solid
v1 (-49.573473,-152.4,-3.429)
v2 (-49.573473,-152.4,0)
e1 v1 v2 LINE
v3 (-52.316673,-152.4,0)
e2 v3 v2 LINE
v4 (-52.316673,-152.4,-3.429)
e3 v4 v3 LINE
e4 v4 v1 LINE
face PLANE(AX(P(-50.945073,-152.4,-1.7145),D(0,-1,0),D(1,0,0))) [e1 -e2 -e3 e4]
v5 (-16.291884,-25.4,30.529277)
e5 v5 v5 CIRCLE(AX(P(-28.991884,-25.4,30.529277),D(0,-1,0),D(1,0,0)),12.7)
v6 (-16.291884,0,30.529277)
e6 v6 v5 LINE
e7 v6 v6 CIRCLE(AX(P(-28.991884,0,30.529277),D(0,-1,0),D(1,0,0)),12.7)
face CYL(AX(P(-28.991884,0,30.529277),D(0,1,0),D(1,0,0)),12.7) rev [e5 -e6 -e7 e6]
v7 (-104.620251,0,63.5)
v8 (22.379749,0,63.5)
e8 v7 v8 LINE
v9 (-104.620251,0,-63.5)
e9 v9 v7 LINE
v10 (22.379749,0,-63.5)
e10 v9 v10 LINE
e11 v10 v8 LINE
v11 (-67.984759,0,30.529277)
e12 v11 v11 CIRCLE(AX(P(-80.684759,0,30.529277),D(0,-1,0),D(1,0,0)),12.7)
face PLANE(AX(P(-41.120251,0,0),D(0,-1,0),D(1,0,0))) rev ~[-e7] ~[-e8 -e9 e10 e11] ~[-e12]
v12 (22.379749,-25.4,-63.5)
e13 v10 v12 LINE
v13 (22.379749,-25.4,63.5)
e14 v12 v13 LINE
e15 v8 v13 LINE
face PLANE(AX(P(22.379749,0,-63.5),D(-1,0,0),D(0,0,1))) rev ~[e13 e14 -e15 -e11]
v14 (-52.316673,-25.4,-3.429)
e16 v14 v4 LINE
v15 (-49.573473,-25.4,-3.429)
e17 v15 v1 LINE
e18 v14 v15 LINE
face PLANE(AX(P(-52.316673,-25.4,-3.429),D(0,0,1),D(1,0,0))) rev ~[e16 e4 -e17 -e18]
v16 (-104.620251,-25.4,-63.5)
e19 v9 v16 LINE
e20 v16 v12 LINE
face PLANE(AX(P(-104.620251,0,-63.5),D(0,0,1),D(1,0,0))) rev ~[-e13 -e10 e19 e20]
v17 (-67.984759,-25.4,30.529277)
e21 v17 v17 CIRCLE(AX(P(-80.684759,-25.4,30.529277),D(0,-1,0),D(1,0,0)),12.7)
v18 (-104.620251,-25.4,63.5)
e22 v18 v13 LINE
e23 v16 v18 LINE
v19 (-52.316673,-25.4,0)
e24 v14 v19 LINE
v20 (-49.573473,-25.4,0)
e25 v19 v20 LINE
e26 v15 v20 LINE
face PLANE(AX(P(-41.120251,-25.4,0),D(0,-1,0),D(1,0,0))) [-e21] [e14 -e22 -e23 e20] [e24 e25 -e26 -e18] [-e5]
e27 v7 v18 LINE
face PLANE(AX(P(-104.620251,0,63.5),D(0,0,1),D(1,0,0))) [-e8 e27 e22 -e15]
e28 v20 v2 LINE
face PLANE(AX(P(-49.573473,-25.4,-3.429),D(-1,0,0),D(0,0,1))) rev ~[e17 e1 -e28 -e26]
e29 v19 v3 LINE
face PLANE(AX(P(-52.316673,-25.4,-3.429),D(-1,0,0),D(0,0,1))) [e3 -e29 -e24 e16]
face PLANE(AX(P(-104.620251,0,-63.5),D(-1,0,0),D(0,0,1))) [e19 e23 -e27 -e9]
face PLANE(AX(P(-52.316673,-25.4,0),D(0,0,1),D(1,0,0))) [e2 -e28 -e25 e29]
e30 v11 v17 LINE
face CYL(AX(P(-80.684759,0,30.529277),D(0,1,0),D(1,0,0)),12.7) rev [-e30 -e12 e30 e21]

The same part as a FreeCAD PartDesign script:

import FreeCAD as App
import Part
import Sketcher
from FreeCAD import Vector
Q = App.Units.Quantity


def add_polygon(sketch, points):
    """Adds a closed chain of lines whose ends are joined by coincident constraints."""
    first, n = sketch.GeometryCount, len(points)
    for a, b in zip(points, points[1:] + points[:1]):
        sketch.addGeometry(Part.LineSegment(App.Vector(*a, 0), App.Vector(*b, 0)), False)
    for i in range(n):
        sketch.addConstraint(Sketcher.Constraint("Coincident", first + i, 2, first + (i + 1) % n, 1))

doc = App.newDocument("Part")
params = doc.addObject("Spreadsheet::Sheet", "Params")
for row, (alias, value) in enumerate([
    ("sketch1_diameter", "1 in"),
    ("sketch1_width", "5 in"),
    ("pad1_length", "1 in"),
    ("sketch2_width", "0.108 in"),
    ("sketch2_height", "0.135 in"),
    ("pad2_length", "5 in"),
], start=1):
    params.set(f"A{row}", alias)
    params.set(f"B{row}", "=" + value)
    params.setAlias(f"B{row}", alias)

body = doc.addObject("PartDesign::Body", "Body")

# Sketch on XZ plane
sketch1 = body.newObject("Sketcher::SketchObject", "Sketch")
sketch1.AttachmentSupport = (doc.getObject("XZ_Plane"), [""])
sketch1.MapMode = "FlatFace"
add_polygon(sketch1, [(-105, 64), (-105, -64), (22, -64), (22, 64)])  # lines 0-3
sketch1.addGeometry(Part.Circle(Vector(-81, 31, 0), Vector(0, 0, 1), 13), False)  # 4
sketch1.addGeometry(Part.Circle(Vector(-29, 31, 0), Vector(0, 0, 1), 13), False)  # 5
sketch1.addConstraint([
    Sketcher.Constraint("Vertical", 0),
    Sketcher.Constraint("Horizontal", 1),
    Sketcher.Constraint("Vertical", 2),
    Sketcher.Constraint("Horizontal", 3),
    Sketcher.Constraint("Equal", 4, 5),
    Sketcher.Constraint("Horizontal", 4, 3, 5, 3),
    Sketcher.Constraint("Equal", 3, 0),
    Sketcher.Constraint("Diameter", 4, Q("1 in")),
    Sketcher.Constraint("DistanceX", 1, 1, 1, 2, Q("5 in")),
    Sketcher.Constraint("DistanceY", 0, 2, -1, 1, Q("2.5 in")),
    Sketcher.Constraint("DistanceX", 4, 3, -1, 1, Q("80.684759 mm")),
    Sketcher.Constraint("DistanceX", 0, 2, -1, 1, Q("104.620251 mm")),
    Sketcher.Constraint("DistanceY", -1, 1, 4, 3, Q("30.529277 mm")),
    Sketcher.Constraint("DistanceX", 5, 3, -1, 1, Q("28.991884 mm")),
])
sketch1.setExpression("Constraints[11]", "Params.sketch1_diameter")
sketch1.setExpression("Constraints[12]", "Params.sketch1_width")
pad1 = body.newObject("PartDesign::Pad", "Pad")
pad1.Profile = sketch1
pad1.setExpression("Length", "Params.pad1_length")

# Sketch on XZ plane
sketch2 = body.newObject("Sketcher::SketchObject", "Sketch001")
sketch2.AttachmentSupport = (doc.getObject("XZ_Plane"), [""])
sketch2.MapMode = "FlatFace"
sketch2.AttachmentOffset = App.Placement(Vector(0, 0, 1 * 25.4), App.Rotation())
add_polygon(sketch2, [(-52.3, 0), (-52.3, -3.4), (-49.6, -3.4), (-49.6, 0)])  # lines 0-3
sketch2.addConstraint([
    Sketcher.Constraint("Vertical", 0),
    Sketcher.Constraint("Horizontal", 1),
    Sketcher.Constraint("Vertical", 2),
    Sketcher.Constraint("Horizontal", 3),
    Sketcher.Constraint("PointOnObject", 2, 2, -1),
    Sketcher.Constraint("DistanceX", 1, 1, 1, 2, Q("0.108 in")),
    Sketcher.Constraint("DistanceY", 0, 2, 0, 1, Q("0.135 in")),
    Sketcher.Constraint("DistanceX", 0, 2, -1, 1, Q("52.316673 mm")),
])
sketch2.setExpression("Constraints[9]", "Params.sketch2_width")
sketch2.setExpression("Constraints[10]", "Params.sketch2_height")
pad2 = body.newObject("PartDesign::Pad", "Pad001")
pad2.Profile = sketch2
pad2.setExpression("Length", "Params.pad2_length")

doc.recompute()
